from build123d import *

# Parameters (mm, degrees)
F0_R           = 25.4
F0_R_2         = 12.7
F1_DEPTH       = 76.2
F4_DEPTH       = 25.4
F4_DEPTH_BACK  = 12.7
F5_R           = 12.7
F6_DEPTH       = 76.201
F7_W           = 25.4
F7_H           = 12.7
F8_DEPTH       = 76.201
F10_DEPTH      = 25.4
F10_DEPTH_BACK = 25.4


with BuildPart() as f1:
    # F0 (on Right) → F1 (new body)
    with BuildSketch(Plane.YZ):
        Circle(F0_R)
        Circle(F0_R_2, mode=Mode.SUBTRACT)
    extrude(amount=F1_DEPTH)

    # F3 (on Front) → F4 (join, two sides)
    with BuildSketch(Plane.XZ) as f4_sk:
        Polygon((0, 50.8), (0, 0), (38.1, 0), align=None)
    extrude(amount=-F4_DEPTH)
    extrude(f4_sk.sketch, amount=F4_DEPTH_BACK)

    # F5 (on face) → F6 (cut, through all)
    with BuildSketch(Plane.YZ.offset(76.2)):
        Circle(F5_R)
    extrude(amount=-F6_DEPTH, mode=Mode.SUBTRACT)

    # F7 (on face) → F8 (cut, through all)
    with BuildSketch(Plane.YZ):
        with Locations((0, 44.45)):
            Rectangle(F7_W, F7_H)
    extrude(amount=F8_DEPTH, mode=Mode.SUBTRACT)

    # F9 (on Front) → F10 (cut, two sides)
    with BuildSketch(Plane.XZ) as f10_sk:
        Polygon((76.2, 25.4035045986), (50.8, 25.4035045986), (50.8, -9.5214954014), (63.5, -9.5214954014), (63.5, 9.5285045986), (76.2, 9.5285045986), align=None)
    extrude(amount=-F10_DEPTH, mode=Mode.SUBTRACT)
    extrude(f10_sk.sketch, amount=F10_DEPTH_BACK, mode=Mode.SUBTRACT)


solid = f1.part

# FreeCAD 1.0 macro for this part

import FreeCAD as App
import Part
import Sketcher
from FreeCAD import Vector
Q = App.Units.Quantity

doc = App.newDocument("Part")
body = doc.addObject("PartDesign::Body", "Body")

sketch1 = body.newObject("Sketcher::SketchObject", "Sketch")
sketch1.AttachmentSupport = (doc.getObject("YZ_Plane"), [""])
sketch1.MapMode = "FlatFace"
sketch1.addGeometry([
    Part.Circle(Vector(0, 0, 0), Vector(0, 0, 1), 25),
    Part.Circle(Vector(0, 0, 0), Vector(0, 0, 1), 13),
], False)
sketch1.addConstraint([
    Sketcher.Constraint("Coincident", 0, 3, -1, 1),
    Sketcher.Constraint("Coincident", 1, 3, -1, 1),
    Sketcher.Constraint("Diameter", 0, Q("2 in")),
    Sketcher.Constraint("Diameter", 1, Q("1 in")),
])
pad1 = body.newObject("PartDesign::Pad", "Pad")
pad1.Profile = sketch1
pad1.Length = Q("3 in")

sketch2 = body.newObject("Sketcher::SketchObject", "Sketch001")
sketch2.AttachmentSupport = (doc.getObject("XZ_Plane"), [""])
sketch2.MapMode = "FlatFace"
sketch2.addGeometry([
    Part.LineSegment(Vector(0, 51, 0), Vector(0, 0, 0)),
    Part.LineSegment(Vector(0, 0, 0), Vector(38, 0, 0)),
    Part.LineSegment(Vector(38, 0, 0), Vector(0, 51, 0)),
], False)
sketch2.addConstraint([
    Sketcher.Constraint("Coincident", 0, 2, 1, 1),
    Sketcher.Constraint("Coincident", 1, 2, 2, 1),
    Sketcher.Constraint("Coincident", 2, 2, 0, 1),
    Sketcher.Constraint("Vertical", 0),
    Sketcher.Constraint("Horizontal", 1),
    Sketcher.Constraint("Coincident", 0, 2, -1, 1),
    Sketcher.Constraint("DistanceY", 0, 2, 0, 1, Q("2 in")),
    Sketcher.Constraint("DistanceX", 1, 1, 1, 2, Q("1.5 in")),
])
pad2 = body.newObject("PartDesign::Pad", "Pad001")
pad2.Profile = sketch2
pad2.Type = "TwoLengths"
pad2.Length = Q("1 in")
pad2.Length2 = Q("0.5 in")
pad2.Reversed = True

sketch3 = body.newObject("Sketcher::SketchObject", "Sketch002")
sketch3.AttachmentSupport = (doc.getObject("YZ_Plane"), [""])
sketch3.MapMode = "FlatFace"
sketch3.AttachmentOffset = App.Placement(Vector(0, 0, 3 * 25.4), App.Rotation())
sketch3.addGeometry(Part.Circle(Vector(0, 0, 0), Vector(0, 0, 1), 13), False)
sketch3.addConstraint([
    Sketcher.Constraint("Coincident", 0, 3, -1, 1),
    Sketcher.Constraint("Diameter", 0, Q("1 in")),
])
pocket1 = body.newObject("PartDesign::Pocket", "Pocket")
pocket1.Profile = sketch3
pocket1.Type = "ThroughAll"

sketch4 = body.newObject("Sketcher::SketchObject", "Sketch003")
sketch4.AttachmentSupport = (doc.getObject("YZ_Plane"), [""])
sketch4.MapMode = "FlatFace"
sketch4.addGeometry([
    Part.LineSegment(Vector(-13, 51, 0), Vector(-13, 38, 0)),
    Part.LineSegment(Vector(-13, 38, 0), Vector(13, 38, 0)),
    Part.LineSegment(Vector(13, 38, 0), Vector(13, 51, 0)),
    Part.LineSegment(Vector(13, 51, 0), Vector(-13, 51, 0)),
], False)
sketch4.addConstraint([
    Sketcher.Constraint("Coincident", 0, 2, 1, 1),
    Sketcher.Constraint("Coincident", 1, 2, 2, 1),
    Sketcher.Constraint("Coincident", 2, 2, 3, 1),
    Sketcher.Constraint("Coincident", 3, 2, 0, 1),
    Sketcher.Constraint("Vertical", 0),
    Sketcher.Constraint("Horizontal", 1),
    Sketcher.Constraint("Vertical", 2),
    Sketcher.Constraint("Horizontal", 3),
    Sketcher.Constraint("DistanceX", 1, 1, 1, 2, Q("1 in")),
    Sketcher.Constraint("DistanceY", 0, 2, 0, 1, Q("0.5 in")),
    Sketcher.Constraint("DistanceY", -1, 1, 2, 2, Q("2 in")),
    Sketcher.Constraint("DistanceX", 0, 2, -1, 1, Q("0.5 in")),
])
pocket2 = body.newObject("PartDesign::Pocket", "Pocket001")
pocket2.Profile = sketch4
pocket2.Type = "ThroughAll"
pocket2.Reversed = True

sketch5 = body.newObject("Sketcher::SketchObject", "Sketch004")
sketch5.AttachmentSupport = (doc.getObject("XZ_Plane"), [""])
sketch5.MapMode = "FlatFace"
sketch5.addGeometry([
    Part.LineSegment(Vector(76, 25, 0), Vector(51, 25, 0)),
    Part.LineSegment(Vector(51, 25, 0), Vector(51, -10, 0)),
    Part.LineSegment(Vector(51, -10, 0), Vector(64, -10, 0)),
    Part.LineSegment(Vector(64, -10, 0), Vector(64, 10, 0)),
    Part.LineSegment(Vector(64, 10, 0), Vector(76, 10, 0)),
    Part.LineSegment(Vector(76, 10, 0), Vector(76, 25, 0)),
], False)
sketch5.addConstraint([
    Sketcher.Constraint("Coincident", 0, 2, 1, 1),
    Sketcher.Constraint("Coincident", 1, 2, 2, 1),
    Sketcher.Constraint("Coincident", 2, 2, 3, 1),
    Sketcher.Constraint("Coincident", 3, 2, 4, 1),
    Sketcher.Constraint("Coincident", 4, 2, 5, 1),
    Sketcher.Constraint("Coincident", 5, 2, 0, 1),
    Sketcher.Constraint("Horizontal", 0),
    Sketcher.Constraint("Vertical", 1),
    Sketcher.Constraint("Horizontal", 2),
    Sketcher.Constraint("Vertical", 3),
    Sketcher.Constraint("Horizontal", 4),
    Sketcher.Constraint("Vertical", 5),
    Sketcher.Constraint("Equal", 2, 4),
    Sketcher.Constraint("DistanceX", 0, 2, 0, 1, Q("1 in")),
    Sketcher.Constraint("DistanceX", -1, 1, 0, 2, Q("2 in")),
    Sketcher.Constraint("DistanceY", 3, 1, 3, 2, Q("0.75 in")),
    Sketcher.Constraint("DistanceY", 1, 2, 1, 1, Q("1.375 in")),
    Sketcher.Constraint("DistanceY", -1, 1, 0, 2, Q("25.403505 mm")),
])
pocket3 = body.newObject("PartDesign::Pocket", "Pocket002")
pocket3.Profile = sketch5
pocket3.Type = "ThroughAll"
pocket3.Midplane = True

doc.recompute()
